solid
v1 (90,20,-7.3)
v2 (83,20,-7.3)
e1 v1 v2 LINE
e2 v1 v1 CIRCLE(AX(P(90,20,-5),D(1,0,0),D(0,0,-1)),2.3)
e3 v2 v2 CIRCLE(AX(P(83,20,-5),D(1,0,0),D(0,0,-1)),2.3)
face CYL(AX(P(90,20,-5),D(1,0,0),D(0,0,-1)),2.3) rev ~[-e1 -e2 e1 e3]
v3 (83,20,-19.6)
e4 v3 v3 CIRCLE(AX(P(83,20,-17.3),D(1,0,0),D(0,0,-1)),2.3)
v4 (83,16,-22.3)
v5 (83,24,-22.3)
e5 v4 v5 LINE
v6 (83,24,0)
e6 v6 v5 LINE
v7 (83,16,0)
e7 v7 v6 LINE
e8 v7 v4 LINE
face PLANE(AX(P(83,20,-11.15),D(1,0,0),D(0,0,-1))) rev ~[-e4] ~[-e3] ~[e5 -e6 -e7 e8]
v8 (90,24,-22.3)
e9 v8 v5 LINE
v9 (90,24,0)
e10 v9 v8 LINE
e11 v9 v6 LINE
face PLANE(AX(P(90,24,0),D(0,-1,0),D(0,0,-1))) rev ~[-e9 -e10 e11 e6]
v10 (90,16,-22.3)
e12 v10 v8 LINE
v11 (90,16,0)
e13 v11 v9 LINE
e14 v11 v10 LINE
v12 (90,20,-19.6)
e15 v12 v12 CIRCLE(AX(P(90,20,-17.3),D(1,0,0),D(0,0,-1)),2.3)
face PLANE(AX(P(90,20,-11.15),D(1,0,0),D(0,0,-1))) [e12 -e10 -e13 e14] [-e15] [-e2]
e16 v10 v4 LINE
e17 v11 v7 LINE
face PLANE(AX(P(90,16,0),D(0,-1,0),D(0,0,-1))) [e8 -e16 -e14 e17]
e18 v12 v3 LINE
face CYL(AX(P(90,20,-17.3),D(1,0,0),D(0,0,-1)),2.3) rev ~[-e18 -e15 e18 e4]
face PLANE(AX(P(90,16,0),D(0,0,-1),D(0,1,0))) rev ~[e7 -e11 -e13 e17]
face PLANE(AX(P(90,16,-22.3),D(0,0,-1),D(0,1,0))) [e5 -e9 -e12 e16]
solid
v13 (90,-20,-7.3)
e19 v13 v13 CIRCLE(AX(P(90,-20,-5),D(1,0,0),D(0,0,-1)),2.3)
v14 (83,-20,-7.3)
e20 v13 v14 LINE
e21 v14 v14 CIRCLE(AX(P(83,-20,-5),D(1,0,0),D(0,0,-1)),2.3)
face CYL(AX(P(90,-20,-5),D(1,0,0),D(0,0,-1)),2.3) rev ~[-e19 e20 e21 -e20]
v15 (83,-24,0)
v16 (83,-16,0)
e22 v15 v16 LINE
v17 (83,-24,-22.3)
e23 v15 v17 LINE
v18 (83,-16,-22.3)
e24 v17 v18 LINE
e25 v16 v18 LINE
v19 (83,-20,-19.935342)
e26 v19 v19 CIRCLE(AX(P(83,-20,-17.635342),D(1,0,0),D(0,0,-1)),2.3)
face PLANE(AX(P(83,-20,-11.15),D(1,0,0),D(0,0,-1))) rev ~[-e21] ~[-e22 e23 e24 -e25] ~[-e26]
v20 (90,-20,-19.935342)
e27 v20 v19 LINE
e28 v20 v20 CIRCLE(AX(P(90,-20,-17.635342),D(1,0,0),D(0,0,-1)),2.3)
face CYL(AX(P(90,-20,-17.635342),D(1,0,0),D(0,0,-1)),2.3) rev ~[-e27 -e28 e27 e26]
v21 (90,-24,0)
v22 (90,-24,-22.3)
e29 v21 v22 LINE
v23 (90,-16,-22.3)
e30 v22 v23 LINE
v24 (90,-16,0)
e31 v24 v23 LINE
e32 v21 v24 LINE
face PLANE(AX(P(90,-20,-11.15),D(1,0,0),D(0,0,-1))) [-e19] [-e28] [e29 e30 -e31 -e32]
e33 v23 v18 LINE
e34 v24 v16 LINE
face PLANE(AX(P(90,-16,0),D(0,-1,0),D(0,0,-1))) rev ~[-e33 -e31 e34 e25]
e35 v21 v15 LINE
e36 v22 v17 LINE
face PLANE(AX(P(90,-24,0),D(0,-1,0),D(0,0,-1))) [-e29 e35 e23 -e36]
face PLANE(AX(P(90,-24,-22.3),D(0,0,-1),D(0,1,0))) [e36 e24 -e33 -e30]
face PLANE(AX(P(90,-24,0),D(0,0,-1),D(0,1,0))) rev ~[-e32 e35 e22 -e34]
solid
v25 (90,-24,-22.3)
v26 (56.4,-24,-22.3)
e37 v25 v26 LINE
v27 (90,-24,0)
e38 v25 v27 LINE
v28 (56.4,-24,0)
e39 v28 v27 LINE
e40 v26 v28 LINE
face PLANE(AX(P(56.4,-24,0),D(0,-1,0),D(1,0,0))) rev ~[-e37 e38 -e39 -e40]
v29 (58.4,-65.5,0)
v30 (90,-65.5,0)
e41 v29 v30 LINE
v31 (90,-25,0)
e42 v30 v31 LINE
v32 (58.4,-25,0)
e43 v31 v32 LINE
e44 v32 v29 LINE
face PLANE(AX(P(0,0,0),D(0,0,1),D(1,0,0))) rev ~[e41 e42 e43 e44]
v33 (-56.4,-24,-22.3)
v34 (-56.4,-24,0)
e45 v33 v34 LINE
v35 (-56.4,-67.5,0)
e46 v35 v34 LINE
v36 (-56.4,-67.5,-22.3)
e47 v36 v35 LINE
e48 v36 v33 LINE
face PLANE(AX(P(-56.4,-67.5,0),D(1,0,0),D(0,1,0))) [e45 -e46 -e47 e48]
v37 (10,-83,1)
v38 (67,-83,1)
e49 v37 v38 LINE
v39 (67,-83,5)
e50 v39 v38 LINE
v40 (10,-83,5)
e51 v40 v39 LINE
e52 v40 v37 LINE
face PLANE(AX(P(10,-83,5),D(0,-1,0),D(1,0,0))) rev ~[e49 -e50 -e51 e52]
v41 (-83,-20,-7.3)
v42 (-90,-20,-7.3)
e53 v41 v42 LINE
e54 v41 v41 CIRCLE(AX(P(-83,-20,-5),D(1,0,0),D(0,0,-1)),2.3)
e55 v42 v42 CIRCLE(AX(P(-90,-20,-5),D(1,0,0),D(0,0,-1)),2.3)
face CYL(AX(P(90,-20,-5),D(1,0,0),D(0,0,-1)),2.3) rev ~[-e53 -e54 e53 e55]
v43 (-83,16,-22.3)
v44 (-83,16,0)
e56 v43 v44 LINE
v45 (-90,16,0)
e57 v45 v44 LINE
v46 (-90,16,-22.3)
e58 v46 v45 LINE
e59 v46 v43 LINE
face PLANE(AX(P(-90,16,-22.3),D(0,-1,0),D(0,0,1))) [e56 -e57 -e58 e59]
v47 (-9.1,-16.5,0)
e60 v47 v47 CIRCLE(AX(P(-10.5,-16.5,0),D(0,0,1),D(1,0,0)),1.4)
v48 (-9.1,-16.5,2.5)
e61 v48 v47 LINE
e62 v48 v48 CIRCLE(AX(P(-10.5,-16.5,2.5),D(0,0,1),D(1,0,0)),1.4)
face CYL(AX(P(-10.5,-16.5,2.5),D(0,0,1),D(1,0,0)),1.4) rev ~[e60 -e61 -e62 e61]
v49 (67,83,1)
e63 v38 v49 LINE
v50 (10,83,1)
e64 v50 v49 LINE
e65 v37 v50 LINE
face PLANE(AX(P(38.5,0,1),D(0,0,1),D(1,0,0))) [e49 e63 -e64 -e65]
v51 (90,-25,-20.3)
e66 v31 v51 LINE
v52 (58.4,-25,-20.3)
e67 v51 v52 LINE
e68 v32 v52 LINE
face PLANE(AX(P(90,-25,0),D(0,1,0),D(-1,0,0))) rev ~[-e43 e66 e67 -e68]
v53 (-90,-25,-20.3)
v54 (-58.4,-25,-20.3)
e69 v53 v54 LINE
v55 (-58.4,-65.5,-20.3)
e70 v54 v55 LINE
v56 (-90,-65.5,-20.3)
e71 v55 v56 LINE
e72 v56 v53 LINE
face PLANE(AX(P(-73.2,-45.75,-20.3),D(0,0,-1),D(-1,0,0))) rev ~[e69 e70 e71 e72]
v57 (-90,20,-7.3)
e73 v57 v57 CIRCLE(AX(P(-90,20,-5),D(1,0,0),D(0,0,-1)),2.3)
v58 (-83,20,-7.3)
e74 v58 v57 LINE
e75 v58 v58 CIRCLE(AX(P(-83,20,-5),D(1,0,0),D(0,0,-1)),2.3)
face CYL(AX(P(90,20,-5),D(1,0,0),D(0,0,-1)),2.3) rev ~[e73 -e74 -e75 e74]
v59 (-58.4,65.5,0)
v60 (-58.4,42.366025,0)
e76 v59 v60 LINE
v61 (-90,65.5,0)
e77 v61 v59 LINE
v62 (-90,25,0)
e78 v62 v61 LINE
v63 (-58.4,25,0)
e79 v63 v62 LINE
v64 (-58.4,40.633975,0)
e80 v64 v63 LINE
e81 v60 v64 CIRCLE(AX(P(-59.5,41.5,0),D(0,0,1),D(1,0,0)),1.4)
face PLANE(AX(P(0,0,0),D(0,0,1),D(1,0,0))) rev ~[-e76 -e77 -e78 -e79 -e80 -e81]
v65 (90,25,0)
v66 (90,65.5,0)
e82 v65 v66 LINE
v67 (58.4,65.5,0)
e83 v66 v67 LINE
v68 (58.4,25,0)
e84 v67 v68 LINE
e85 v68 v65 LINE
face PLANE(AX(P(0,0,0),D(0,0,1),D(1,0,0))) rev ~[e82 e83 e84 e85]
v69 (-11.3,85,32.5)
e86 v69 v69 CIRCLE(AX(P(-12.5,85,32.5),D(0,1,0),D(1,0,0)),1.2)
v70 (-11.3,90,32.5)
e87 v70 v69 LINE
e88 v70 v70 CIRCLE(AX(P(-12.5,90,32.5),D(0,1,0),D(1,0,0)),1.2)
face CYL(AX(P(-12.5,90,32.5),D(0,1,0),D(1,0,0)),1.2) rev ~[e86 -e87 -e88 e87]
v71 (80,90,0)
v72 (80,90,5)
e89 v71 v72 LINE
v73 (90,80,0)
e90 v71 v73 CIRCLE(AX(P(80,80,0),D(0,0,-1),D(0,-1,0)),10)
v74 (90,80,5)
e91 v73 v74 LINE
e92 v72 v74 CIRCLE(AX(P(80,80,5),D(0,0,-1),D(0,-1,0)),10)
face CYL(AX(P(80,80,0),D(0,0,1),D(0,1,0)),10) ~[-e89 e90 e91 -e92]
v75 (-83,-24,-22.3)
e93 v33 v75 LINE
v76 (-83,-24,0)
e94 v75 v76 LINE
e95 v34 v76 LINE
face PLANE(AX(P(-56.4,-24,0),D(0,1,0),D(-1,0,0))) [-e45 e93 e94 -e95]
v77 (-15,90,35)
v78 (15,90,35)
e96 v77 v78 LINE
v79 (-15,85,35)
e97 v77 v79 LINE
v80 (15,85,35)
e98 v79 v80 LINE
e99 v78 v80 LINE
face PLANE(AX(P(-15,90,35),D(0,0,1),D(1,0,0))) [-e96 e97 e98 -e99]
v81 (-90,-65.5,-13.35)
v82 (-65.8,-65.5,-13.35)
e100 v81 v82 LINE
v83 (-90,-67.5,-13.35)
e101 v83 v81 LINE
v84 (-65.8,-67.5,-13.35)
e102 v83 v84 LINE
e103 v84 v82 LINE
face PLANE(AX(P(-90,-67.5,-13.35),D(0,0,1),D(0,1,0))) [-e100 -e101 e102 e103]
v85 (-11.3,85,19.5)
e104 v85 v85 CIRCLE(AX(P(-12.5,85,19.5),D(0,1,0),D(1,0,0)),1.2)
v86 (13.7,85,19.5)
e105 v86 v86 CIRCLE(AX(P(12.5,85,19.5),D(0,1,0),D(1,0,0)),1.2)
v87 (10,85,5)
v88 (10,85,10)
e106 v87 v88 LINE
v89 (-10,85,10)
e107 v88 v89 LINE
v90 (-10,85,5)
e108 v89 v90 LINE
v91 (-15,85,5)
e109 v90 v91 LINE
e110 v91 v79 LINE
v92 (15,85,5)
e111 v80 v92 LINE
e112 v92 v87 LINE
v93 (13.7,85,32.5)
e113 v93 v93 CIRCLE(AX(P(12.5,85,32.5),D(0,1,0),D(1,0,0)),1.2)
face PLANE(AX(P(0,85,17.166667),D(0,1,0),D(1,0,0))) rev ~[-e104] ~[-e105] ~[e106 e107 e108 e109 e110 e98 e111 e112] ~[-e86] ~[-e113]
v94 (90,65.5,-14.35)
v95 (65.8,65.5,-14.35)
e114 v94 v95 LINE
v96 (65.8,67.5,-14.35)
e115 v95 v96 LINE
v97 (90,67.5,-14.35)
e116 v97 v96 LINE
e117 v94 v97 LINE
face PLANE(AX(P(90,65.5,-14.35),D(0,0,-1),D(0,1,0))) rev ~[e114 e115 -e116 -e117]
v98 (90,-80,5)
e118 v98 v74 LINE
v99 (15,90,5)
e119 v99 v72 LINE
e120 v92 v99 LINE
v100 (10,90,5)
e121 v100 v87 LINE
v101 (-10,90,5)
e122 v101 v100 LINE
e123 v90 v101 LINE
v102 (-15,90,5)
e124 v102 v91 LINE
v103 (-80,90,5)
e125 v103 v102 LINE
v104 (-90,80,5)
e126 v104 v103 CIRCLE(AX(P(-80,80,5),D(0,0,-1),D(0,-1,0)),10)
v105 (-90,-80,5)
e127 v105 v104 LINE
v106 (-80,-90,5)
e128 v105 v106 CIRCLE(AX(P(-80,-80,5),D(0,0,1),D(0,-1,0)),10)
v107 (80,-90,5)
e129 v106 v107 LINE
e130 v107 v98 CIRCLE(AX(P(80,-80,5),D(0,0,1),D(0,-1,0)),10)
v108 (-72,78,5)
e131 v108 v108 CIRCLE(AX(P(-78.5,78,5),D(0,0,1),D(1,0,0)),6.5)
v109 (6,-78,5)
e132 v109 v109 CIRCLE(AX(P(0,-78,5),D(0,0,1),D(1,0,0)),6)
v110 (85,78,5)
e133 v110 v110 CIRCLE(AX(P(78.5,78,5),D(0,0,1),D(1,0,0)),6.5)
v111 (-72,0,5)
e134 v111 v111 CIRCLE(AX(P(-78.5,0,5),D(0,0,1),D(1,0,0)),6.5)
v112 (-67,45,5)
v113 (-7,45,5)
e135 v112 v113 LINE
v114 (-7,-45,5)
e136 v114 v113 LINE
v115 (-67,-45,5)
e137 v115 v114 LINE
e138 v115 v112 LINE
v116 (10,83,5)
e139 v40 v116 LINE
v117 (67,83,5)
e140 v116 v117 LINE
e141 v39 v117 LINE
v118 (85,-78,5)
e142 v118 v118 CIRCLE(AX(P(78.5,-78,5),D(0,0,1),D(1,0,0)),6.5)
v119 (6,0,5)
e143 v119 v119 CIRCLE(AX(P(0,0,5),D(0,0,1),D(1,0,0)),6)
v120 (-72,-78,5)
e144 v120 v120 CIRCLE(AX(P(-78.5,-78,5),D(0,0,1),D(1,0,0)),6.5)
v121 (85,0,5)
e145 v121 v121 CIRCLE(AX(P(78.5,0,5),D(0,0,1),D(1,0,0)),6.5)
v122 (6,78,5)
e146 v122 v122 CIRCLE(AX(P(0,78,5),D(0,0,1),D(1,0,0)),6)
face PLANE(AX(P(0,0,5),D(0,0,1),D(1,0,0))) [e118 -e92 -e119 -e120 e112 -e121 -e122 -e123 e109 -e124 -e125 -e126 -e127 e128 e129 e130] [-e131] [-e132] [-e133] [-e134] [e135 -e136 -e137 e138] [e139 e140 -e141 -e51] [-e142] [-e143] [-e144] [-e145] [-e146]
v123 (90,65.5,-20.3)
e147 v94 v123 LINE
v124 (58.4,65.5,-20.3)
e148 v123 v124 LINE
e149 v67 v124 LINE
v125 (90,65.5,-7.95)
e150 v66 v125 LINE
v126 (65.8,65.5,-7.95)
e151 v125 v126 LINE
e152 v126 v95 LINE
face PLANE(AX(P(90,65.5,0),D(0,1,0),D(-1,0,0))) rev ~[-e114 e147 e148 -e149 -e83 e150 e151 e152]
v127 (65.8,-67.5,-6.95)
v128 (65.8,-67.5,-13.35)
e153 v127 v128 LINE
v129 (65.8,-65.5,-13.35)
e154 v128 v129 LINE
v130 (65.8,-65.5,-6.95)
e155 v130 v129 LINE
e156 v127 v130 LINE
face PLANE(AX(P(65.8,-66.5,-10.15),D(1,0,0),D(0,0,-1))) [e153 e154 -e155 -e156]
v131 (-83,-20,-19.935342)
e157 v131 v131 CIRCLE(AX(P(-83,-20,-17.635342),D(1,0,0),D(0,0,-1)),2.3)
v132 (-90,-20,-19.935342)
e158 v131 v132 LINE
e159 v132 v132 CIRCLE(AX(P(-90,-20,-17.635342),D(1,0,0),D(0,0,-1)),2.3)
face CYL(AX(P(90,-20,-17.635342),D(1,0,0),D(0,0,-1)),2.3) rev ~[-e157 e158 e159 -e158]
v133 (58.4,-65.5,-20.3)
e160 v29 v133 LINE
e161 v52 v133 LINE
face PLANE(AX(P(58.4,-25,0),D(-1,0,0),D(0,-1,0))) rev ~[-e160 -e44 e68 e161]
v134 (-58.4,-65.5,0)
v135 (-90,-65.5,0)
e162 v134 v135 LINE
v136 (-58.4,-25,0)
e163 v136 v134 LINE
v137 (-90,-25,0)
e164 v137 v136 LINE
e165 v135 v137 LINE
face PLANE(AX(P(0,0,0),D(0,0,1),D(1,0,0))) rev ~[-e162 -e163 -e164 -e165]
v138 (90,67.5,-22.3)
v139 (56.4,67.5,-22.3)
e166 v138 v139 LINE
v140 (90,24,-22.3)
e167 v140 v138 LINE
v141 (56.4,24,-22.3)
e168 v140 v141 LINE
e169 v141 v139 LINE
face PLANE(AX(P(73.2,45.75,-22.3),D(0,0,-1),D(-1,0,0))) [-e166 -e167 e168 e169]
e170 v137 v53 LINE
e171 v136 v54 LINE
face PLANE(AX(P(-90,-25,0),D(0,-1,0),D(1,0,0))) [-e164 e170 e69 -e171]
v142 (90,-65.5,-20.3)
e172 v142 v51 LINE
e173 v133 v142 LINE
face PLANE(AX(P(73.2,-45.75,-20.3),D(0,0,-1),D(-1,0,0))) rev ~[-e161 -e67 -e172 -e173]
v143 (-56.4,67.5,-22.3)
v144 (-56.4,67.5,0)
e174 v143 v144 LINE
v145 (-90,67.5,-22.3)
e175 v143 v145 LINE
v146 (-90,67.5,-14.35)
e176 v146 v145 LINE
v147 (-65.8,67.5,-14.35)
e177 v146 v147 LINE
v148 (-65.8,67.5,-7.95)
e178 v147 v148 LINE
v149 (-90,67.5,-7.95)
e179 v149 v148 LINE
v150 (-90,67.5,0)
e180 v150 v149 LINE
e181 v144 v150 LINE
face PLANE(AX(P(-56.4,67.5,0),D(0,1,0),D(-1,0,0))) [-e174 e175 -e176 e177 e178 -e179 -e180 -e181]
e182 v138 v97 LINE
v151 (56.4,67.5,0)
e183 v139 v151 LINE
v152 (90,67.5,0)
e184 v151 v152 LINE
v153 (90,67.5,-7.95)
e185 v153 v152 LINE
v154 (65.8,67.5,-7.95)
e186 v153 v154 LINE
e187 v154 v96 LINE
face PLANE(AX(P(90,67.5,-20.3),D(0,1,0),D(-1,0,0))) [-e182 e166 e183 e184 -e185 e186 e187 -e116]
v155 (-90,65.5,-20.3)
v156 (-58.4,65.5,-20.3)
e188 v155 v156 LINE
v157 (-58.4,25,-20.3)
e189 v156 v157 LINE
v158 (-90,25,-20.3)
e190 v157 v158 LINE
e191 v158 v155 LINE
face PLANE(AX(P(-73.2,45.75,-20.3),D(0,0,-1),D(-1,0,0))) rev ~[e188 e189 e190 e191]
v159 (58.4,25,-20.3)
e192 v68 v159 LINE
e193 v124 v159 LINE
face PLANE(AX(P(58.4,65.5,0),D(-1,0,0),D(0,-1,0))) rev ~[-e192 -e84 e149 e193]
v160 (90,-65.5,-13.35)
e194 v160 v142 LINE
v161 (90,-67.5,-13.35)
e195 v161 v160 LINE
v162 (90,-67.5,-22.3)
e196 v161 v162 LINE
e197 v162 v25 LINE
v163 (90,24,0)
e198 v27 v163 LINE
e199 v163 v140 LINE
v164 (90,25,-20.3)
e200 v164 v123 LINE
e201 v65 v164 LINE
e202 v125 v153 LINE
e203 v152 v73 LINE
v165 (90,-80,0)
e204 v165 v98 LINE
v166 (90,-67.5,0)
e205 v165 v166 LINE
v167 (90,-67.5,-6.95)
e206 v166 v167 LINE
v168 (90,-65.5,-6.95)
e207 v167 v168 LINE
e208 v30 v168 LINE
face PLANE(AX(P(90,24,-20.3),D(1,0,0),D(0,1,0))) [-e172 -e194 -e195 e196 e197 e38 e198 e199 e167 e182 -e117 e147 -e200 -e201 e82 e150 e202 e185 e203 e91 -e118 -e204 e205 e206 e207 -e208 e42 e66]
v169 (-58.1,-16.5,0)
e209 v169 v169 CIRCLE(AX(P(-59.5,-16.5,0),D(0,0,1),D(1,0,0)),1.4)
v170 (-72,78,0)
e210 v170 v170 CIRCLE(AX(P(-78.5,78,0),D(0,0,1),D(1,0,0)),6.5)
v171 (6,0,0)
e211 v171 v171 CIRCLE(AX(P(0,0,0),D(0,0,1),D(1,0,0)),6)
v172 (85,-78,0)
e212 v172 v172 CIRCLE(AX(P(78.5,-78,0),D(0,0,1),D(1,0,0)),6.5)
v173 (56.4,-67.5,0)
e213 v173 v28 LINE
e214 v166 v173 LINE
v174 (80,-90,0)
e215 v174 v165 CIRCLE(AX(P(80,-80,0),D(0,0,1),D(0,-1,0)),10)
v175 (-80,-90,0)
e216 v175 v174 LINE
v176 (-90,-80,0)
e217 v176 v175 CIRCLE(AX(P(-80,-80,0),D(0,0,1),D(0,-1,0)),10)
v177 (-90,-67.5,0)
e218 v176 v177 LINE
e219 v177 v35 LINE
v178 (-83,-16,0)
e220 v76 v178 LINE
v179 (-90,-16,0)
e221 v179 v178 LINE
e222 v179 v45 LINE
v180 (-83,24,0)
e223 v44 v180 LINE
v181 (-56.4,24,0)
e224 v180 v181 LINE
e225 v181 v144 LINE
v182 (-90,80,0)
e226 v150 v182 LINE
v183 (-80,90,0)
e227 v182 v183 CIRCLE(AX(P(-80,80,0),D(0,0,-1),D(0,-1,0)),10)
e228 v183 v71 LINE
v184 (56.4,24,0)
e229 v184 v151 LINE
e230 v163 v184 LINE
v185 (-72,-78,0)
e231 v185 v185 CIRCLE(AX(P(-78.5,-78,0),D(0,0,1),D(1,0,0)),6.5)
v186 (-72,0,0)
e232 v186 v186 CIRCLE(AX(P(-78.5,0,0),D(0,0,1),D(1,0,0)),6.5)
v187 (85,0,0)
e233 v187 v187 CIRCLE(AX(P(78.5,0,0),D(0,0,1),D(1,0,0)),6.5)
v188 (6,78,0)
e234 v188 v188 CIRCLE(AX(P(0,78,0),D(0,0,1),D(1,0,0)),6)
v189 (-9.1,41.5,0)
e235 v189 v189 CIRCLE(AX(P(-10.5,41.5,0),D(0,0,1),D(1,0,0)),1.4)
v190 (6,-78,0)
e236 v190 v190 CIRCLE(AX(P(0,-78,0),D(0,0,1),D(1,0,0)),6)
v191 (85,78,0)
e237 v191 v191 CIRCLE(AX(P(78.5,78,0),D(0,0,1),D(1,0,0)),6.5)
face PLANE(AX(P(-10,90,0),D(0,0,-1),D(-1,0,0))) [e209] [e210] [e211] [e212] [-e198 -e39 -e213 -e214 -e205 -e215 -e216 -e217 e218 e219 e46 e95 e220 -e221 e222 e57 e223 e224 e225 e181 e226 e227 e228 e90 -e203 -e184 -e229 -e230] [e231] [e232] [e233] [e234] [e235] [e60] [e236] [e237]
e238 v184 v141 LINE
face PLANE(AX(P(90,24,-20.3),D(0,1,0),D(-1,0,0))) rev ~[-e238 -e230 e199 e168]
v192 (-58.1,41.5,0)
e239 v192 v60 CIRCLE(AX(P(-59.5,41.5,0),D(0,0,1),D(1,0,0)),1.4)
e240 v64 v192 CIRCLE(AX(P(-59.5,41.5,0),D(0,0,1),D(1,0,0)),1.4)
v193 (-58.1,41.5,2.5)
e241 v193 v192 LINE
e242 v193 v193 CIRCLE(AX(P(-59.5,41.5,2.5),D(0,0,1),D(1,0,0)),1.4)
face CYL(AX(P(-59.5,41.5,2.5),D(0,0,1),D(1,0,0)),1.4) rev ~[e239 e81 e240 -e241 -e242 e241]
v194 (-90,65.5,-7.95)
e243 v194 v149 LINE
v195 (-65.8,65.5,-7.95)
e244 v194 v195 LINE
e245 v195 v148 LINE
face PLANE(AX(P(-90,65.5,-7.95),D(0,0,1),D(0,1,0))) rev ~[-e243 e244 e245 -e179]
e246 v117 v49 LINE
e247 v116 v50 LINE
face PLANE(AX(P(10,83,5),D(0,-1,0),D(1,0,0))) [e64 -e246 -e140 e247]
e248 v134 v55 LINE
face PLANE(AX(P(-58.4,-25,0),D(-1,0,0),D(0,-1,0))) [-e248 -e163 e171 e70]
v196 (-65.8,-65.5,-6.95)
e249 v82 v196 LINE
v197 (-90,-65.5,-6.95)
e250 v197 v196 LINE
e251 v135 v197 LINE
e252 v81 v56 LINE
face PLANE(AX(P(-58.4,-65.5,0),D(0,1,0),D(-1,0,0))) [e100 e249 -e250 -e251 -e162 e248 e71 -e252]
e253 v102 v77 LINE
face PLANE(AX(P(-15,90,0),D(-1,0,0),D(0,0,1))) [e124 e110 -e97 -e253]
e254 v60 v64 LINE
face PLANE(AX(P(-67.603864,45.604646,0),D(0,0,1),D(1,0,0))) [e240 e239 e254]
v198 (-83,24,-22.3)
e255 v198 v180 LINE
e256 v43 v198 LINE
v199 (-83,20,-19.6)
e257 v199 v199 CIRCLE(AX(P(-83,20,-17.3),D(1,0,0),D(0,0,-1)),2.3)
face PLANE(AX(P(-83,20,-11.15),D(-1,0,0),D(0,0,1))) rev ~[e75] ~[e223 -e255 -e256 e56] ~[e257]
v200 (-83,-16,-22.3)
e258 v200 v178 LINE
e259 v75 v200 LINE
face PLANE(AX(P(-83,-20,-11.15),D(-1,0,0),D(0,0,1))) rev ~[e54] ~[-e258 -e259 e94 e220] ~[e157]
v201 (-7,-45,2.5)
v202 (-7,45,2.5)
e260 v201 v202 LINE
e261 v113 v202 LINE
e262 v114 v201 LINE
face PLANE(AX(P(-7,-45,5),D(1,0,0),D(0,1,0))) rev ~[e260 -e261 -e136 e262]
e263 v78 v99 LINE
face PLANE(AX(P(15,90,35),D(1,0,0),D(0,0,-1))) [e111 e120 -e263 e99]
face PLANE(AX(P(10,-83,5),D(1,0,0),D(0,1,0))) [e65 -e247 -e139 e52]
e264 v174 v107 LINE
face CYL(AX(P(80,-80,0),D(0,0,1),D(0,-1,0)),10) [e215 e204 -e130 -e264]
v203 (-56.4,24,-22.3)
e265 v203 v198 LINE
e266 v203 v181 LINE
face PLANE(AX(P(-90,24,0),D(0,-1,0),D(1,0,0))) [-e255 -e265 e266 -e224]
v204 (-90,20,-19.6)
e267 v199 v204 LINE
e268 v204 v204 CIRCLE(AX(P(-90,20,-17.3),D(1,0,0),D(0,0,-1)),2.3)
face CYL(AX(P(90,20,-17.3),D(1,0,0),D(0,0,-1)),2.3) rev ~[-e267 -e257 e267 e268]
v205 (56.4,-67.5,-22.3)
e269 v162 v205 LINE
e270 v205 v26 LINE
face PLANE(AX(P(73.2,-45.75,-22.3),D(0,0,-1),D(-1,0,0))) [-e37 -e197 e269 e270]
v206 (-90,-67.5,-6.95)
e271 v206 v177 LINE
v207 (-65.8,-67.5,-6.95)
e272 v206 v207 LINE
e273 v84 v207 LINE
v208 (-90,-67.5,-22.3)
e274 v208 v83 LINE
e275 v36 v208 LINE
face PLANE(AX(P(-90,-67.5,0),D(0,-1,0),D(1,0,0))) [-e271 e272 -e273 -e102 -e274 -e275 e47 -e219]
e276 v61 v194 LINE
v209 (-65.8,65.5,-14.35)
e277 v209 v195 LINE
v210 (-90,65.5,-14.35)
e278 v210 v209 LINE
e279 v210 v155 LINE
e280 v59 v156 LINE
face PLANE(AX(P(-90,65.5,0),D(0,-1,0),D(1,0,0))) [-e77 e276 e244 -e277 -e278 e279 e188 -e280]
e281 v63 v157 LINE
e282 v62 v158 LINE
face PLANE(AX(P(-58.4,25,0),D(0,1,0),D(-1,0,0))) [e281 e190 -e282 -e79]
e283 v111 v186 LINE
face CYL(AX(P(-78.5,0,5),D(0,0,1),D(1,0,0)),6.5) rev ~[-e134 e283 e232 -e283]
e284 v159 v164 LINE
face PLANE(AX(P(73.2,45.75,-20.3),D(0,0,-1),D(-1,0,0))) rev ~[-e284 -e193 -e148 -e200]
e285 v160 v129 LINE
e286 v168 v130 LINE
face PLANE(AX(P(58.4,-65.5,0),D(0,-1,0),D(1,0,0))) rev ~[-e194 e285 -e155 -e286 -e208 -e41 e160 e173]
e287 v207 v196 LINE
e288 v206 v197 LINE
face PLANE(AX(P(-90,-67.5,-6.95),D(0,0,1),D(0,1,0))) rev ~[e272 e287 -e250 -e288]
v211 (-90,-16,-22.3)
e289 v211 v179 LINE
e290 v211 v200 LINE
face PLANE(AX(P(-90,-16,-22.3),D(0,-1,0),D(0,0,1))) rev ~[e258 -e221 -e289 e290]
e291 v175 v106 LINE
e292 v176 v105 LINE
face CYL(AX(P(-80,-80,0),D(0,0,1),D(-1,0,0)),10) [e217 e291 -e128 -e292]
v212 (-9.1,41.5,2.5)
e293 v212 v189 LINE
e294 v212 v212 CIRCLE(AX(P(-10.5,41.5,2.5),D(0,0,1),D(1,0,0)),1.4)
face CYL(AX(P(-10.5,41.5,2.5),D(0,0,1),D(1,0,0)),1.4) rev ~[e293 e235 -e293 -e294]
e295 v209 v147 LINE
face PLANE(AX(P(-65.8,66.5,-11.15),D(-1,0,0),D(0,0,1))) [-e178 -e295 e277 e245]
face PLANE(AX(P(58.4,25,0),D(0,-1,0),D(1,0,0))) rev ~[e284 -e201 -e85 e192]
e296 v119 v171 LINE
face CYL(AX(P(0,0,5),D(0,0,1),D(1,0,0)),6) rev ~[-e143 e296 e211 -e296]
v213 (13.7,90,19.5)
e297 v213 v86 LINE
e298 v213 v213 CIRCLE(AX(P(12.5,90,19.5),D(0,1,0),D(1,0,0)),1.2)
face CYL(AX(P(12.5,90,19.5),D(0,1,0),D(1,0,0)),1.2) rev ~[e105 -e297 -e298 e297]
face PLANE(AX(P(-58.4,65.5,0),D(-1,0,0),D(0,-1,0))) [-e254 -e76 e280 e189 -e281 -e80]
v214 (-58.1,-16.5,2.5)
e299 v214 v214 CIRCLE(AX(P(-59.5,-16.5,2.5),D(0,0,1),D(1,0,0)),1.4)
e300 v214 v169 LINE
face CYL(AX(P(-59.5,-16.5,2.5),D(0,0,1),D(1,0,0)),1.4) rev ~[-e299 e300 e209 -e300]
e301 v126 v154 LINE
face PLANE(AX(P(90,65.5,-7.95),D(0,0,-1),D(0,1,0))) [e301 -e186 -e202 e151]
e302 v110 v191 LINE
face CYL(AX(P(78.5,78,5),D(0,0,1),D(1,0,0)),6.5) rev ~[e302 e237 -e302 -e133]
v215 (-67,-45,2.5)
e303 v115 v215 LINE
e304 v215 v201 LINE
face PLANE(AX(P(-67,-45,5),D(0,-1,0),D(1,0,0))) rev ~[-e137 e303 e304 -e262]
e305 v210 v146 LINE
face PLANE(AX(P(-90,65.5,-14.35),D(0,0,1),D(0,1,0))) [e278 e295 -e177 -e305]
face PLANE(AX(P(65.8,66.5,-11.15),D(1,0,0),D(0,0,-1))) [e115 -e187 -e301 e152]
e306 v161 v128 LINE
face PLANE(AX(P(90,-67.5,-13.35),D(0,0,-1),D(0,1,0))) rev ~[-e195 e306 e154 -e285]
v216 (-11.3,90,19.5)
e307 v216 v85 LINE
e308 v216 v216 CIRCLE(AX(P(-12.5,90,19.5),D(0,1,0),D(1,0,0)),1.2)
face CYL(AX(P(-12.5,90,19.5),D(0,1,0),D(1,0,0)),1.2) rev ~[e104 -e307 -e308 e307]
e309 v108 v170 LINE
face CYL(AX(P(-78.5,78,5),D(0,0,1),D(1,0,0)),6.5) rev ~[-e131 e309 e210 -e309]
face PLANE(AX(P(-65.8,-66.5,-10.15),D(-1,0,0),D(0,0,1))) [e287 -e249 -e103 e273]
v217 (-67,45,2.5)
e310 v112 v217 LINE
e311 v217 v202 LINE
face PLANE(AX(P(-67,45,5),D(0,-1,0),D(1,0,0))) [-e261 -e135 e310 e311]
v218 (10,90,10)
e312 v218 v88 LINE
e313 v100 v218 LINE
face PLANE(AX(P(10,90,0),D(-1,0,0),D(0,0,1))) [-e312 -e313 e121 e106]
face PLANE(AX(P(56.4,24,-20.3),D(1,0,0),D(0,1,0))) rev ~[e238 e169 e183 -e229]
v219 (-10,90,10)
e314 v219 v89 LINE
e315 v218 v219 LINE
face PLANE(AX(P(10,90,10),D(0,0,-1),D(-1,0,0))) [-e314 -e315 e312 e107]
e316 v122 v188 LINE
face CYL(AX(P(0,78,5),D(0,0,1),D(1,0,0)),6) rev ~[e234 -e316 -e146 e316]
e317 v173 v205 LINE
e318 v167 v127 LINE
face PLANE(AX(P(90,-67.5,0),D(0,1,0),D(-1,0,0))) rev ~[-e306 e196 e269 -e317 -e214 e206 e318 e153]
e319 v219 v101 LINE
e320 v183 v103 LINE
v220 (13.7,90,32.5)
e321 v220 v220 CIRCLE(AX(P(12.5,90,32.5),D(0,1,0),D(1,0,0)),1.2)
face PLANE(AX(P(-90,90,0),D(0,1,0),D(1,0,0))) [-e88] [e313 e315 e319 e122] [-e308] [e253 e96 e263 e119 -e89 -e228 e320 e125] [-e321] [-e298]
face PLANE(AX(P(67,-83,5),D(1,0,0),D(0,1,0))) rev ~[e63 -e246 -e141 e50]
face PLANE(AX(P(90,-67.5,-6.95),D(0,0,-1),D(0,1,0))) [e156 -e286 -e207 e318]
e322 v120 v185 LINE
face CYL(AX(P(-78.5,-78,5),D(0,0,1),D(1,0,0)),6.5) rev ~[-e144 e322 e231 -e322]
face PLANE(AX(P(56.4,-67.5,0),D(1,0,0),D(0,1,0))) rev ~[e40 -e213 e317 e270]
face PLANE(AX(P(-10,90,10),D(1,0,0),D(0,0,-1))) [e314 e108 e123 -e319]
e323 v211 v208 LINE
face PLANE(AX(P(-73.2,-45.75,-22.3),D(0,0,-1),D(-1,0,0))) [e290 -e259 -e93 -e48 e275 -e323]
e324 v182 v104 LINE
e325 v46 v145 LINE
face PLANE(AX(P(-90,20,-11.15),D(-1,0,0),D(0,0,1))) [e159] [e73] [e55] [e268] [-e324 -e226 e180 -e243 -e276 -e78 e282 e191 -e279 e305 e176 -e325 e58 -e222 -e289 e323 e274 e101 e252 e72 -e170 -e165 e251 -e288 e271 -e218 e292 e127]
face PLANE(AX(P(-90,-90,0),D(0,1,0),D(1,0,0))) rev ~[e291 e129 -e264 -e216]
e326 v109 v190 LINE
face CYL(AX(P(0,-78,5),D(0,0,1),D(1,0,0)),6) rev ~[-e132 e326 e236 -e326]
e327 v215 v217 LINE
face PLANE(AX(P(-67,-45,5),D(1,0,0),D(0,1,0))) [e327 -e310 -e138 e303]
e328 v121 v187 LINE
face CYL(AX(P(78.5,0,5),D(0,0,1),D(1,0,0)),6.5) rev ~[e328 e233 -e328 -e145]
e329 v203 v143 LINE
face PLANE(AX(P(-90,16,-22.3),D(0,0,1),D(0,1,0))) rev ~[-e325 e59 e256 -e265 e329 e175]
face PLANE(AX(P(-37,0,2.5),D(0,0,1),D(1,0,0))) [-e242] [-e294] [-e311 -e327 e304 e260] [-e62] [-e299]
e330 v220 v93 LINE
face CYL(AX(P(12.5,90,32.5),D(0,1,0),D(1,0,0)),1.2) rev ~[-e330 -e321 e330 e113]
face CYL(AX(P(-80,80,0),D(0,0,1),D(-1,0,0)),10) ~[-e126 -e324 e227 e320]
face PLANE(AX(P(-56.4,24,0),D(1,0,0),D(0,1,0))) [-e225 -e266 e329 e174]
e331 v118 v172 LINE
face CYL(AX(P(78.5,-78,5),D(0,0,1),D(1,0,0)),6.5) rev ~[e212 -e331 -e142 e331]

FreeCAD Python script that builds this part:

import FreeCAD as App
import Part
import Sketcher
from FreeCAD import Vector
Q = App.Units.Quantity


def edges_at(feature, points):
    """Names of the edges that pass closest to the given points."""
    edges = feature.Shape.Edges
    near = lambda p: min(range(len(edges)), key=lambda i: edges[i].distToShape(Part.Vertex(*p))[0])
    return sorted({f"Edge{near(p) + 1}" for p in points})


def add_polygon(sketch, points):
    """Adds a closed chain of lines whose ends are joined by coincident constraints."""
    first, n = sketch.GeometryCount, len(points)
    for a, b in zip(points, points[1:] + points[:1]):
        sketch.addGeometry(Part.LineSegment(App.Vector(*a, 0), App.Vector(*b, 0)), False)
    for i in range(n):
        sketch.addConstraint(Sketcher.Constraint("Coincident", first + i, 2, first + (i + 1) % n, 1))

doc = App.newDocument("Part")
params = doc.addObject("Spreadsheet::Sheet", "Params")
for row, (alias, value) in enumerate([
    ("sketch1_width", "180 mm"),
    ("pad1_length", "5 mm"),
    ("sketch2_width", "60 mm"),
    ("sketch2_height", "90 mm"),
    ("pocket1_length", "2.5 mm"),
    ("sketch3_diameter", "2.8 mm"),
    ("pocket2_length", "2.5 mm"),
    ("sketch4_width", "57 mm"),
    ("sketch4_height", "166 mm"),
    ("pocket3_length", "4 mm"),
    ("sketch5_height", "2 mm"),
    ("sketch5_height2", "1 mm"),
    ("sketch5_width", "31.6 mm"),
    ("sketch5_width2", "33.6 mm"),
    ("sketch5_height3", "43.5 mm"),
    ("pad2_length", "20.3 mm"),
    ("sketch6_width", "33.6 mm"),
    ("sketch6_height", "43.5 mm"),
    ("pad3_length", "2 mm"),
    ("sketch7_width", "2 mm"),
    ("sketch7_height", "6.4 mm"),
    ("pocket4_length", "24.2 mm"),
    ("sketch8_width", "8 mm"),
    ("sketch8_height", "22.3 mm"),
    ("pad4_length", "7 mm"),
    ("sketch9_width", "2 mm"),
    ("sketch9_height", "6.4 mm"),
    ("pocket5_length", "24.2 mm"),
    ("sketch10_width", "8 mm"),
    ("sketch10_height", "22.3 mm"),
    ("pad5_length", "7 mm"),
    ("sketch11_width", "8 mm"),
    ("sketch11_height", "22.3 mm"),
    ("pad6_length", "7 mm"),
    ("sketch12_diameter", "4.6 mm"),
    ("pad7_length", "181 mm"),
    ("sketch13_diameter", "13 mm"),
    ("sketch13_diameter2", "12 mm"),
    ("fillet_radius", "10 mm"),
    ("sketch14_width", "30 mm"),
    ("sketch14_width2", "5 mm"),
    ("sketch14_height", "35 mm"),
    ("sketch14_height2", "10 mm"),
    ("pad8_length", "5 mm"),
    ("sketch15_diameter", "2.4 mm"),
], start=1):
    params.set(f"A{row}", alias)
    params.set(f"B{row}", "=" + value)
    params.setAlias(f"B{row}", alias)

body = doc.addObject("PartDesign::Body", "Body")

sketch1 = body.newObject("Sketcher::SketchObject", "Sketch")
sketch1.AttachmentSupport = (doc.getObject("XY_Plane"), [""])
sketch1.MapMode = "FlatFace"
add_polygon(sketch1, [(-90, 90), (-90, -90), (90, -90), (90, 90)])
sketch1.addConstraint([
    Sketcher.Constraint("Vertical", 0),
    Sketcher.Constraint("Horizontal", 1),
    Sketcher.Constraint("Vertical", 2),
    Sketcher.Constraint("Horizontal", 3),
    Sketcher.Constraint("Symmetric", 0, 2, 2, 2, -1, 1),
    Sketcher.Constraint("Equal", 3, 0),
    Sketcher.Constraint("DistanceX", 1, 1, 1, 2, Q("180 mm")),
])
sketch1.setExpression("Constraints[10]", "Params.sketch1_width")
pad1 = body.newObject("PartDesign::Pad", "Pad")
pad1.Profile = sketch1
pad1.setExpression("Length", "Params.pad1_length")

sketch2 = body.newObject("Sketcher::SketchObject", "Sketch001")
sketch2.AttachmentSupport = (doc.getObject("XY_Plane"), [""])
sketch2.MapMode = "FlatFace"
sketch2.AttachmentOffset = App.Placement(Vector(0, 0, 5), App.Rotation())
add_polygon(sketch2, [(-67, 45), (-67, -45), (-7, -45), (-7, 45)])
sketch2.addConstraint([
    Sketcher.Constraint("Vertical", 0),
    Sketcher.Constraint("Horizontal", 1),
    Sketcher.Constraint("Vertical", 2),
    Sketcher.Constraint("Horizontal", 3),
    Sketcher.Constraint("DistanceX", 1, 1, 1, 2, Q("60 mm")),
    Sketcher.Constraint("DistanceY", 0, 2, 0, 1, Q("90 mm")),
    Sketcher.Constraint("DistanceX", 0, 2, -1, 1, Q("67 mm")),
    Sketcher.Constraint("DistanceY", 0, 2, -1, 1, Q("45 mm")),
])
sketch2.setExpression("Constraints[8]", "Params.sketch2_width")
sketch2.setExpression("Constraints[9]", "Params.sketch2_height")
pocket1 = body.newObject("PartDesign::Pocket", "Pocket")
pocket1.Profile = sketch2
pocket1.setExpression("Length", "Params.pocket1_length")

sketch3 = body.newObject("Sketcher::SketchObject", "Sketch002")
sketch3.AttachmentSupport = (doc.getObject("XY_Plane"), [""])
sketch3.MapMode = "FlatFace"
sketch3.AttachmentOffset = App.Placement(Vector(0, 0, 2.5), App.Rotation())
sketch3.addGeometry([
    Part.Circle(Vector(-10.5, 41.5, 0), Vector(0, 0, 1), 1.4),
    Part.Circle(Vector(-59.5, 41.5, 0), Vector(0, 0, 1), 1.4),
    Part.Circle(Vector(-59.5, -16.5, 0), Vector(0, 0, 1), 1.4),
    Part.Circle(Vector(-10.5, -16.5, 0), Vector(0, 0, 1), 1.4),
], False)
sketch3.addConstraint([
    Sketcher.Constraint("Equal", 0, 1),
    Sketcher.Constraint("Equal", 1, 2),
    Sketcher.Constraint("Equal", 2, 3),
    Sketcher.Constraint("Horizontal", 0, 3, 1, 3),
    Sketcher.Constraint("Horizontal", 2, 3, 3, 3),
    Sketcher.Constraint("Vertical", 1, 3, 2, 3),
    Sketcher.Constraint("Vertical", 0, 3, 3, 3),
    Sketcher.Constraint("Diameter", 0, Q("2.8 mm")),
    Sketcher.Constraint("DistanceX", 1, 3, 0, 3, Q("49 mm")),
    Sketcher.Constraint("DistanceY", 2, 3, 1, 3, Q("58 mm")),
    Sketcher.Constraint("DistanceX", 0, 3, -1, 1, Q("10.5 mm")),
    Sketcher.Constraint("DistanceY", -1, 1, 0, 3, Q("41.5 mm")),
])
sketch3.setExpression("Constraints[7]", "Params.sketch3_diameter")
pocket2 = body.newObject("PartDesign::Pocket", "Pocket001")
pocket2.Profile = sketch3
pocket2.setExpression("Length", "Params.pocket2_length")

sketch4 = body.newObject("Sketcher::SketchObject", "Sketch003")
sketch4.AttachmentSupport = (doc.getObject("XY_Plane"), [""])
sketch4.MapMode = "FlatFace"
sketch4.AttachmentOffset = App.Placement(Vector(0, 0, 5), App.Rotation())
add_polygon(sketch4, [(10, 83), (10, -83), (67, -83), (67, 83)])
sketch4.addConstraint([
    Sketcher.Constraint("Vertical", 0),
    Sketcher.Constraint("Horizontal", 1),
    Sketcher.Constraint("Vertical", 2),
    Sketcher.Constraint("Horizontal", 3),
    Sketcher.Constraint("DistanceX", 1, 1, 1, 2, Q("57 mm")),
    Sketcher.Constraint("DistanceY", 0, 2, 0, 1, Q("166 mm")),
    Sketcher.Constraint("DistanceX", -1, 1, 0, 2, Q("10 mm")),
    Sketcher.Constraint("DistanceY", 0, 2, -1, 1, Q("83 mm")),
])
sketch4.setExpression("Constraints[8]", "Params.sketch4_width")
sketch4.setExpression("Constraints[9]", "Params.sketch4_height")
pocket3 = body.newObject("PartDesign::Pocket", "Pocket002")
pocket3.Profile = sketch4
pocket3.setExpression("Length", "Params.pocket3_length")

sketch5 = body.newObject("Sketcher::SketchObject", "Sketch004")
sketch5.AttachmentSupport = (doc.getObject("XY_Plane"), [""])
sketch5.MapMode = "FlatFace"
add_polygon(sketch5, [(-58.4, 65.5), (-90, 65.5), (-90, 67.5), (-56.4, 67.5), (-56.4, 24), (-90, 24), (-90, 25), (-58.4, 25)])
add_polygon(sketch5, [(-58.4, -25), (-90, -25), (-90, -24), (-56.4, -24), (-56.4, -67.5), (-90, -67.5), (-90, -65.5), (-58.4, -65.5)])
add_polygon(sketch5, [(90, -25), (58.4, -25), (58.4, -65.5), (90, -65.5), (90, -67.5), (56.4, -67.5), (56.4, -24), (90, -24)])
add_polygon(sketch5, [(90, 65.5), (58.4, 65.5), (58.4, 25), (90, 25), (90, 24), (56.4, 24), (56.4, 67.5), (90, 67.5)])
sketch5.addConstraint([
    Sketcher.Constraint("Horizontal", 0),
    Sketcher.Constraint("Vertical", 1),
    Sketcher.Constraint("Horizontal", 2),
    Sketcher.Constraint("Vertical", 3),
    Sketcher.Constraint("Horizontal", 4),
    Sketcher.Constraint("Vertical", 5),
    Sketcher.Constraint("Horizontal", 6),
    Sketcher.Constraint("Vertical", 7),
    Sketcher.Constraint("Horizontal", 8),
    Sketcher.Constraint("Vertical", 9),
    Sketcher.Constraint("Horizontal", 10),
    Sketcher.Constraint("Vertical", 11),
    Sketcher.Constraint("Horizontal", 12),
    Sketcher.Constraint("Vertical", 13),
    Sketcher.Constraint("Horizontal", 14),
    Sketcher.Constraint("Vertical", 15),
    Sketcher.Constraint("Horizontal", 16),
    Sketcher.Constraint("Vertical", 17),
    Sketcher.Constraint("Horizontal", 18),
    Sketcher.Constraint("Vertical", 19),
    Sketcher.Constraint("Horizontal", 20),
    Sketcher.Constraint("Vertical", 21),
    Sketcher.Constraint("Horizontal", 22),
    Sketcher.Constraint("Vertical", 23),
    Sketcher.Constraint("Horizontal", 24),
    Sketcher.Constraint("Vertical", 25),
    Sketcher.Constraint("Horizontal", 26),
    Sketcher.Constraint("Vertical", 27),
    Sketcher.Constraint("Horizontal", 28),
    Sketcher.Constraint("Vertical", 29),
    Sketcher.Constraint("Horizontal", 30),
    Sketcher.Constraint("Vertical", 31),
    Sketcher.Constraint("Symmetric", 6, 2, 16, 2, -1, 1),
    Sketcher.Constraint("Symmetric", 0, 2, 18, 2, -1, 1),
    Sketcher.Constraint("Symmetric", 2, 2, 20, 2, -1, 1),
    Sketcher.Constraint("Symmetric", 4, 2, 22, 2, -1, 1),
    Sketcher.Constraint("Symmetric", 14, 2, 24, 2, -1, 1),
    Sketcher.Constraint("Symmetric", 8, 2, 26, 2, -1, 1),
    Sketcher.Constraint("Symmetric", 10, 2, 28, 2, -1, 1),
    Sketcher.Constraint("Symmetric", 12, 2, 30, 2, -1, 1),
    Sketcher.Constraint("Symmetric", 15, 2, 16, 2, -2),
    Sketcher.Constraint("Symmetric", 13, 2, 18, 2, -2),
    Sketcher.Constraint("Symmetric", 11, 2, 20, 2, -2),
    Sketcher.Constraint("Symmetric", 9, 2, 22, 2, -2),
    Sketcher.Constraint("Vertical", 1, 2, 4, 2),
    Sketcher.Constraint("DistanceY", 1, 1, 1, 2, Q("2 mm")),
    Sketcher.Constraint("DistanceY", 5, 1, 5, 2, Q("1 mm")),
    Sketcher.Constraint("DistanceX", 0, 2, 0, 1, Q("31.6 mm")),
    Sketcher.Constraint("DistanceX", 2, 1, 2, 2, Q("33.6 mm")),
    Sketcher.Constraint("DistanceY", 3, 2, 3, 1, Q("43.5 mm")),
    Sketcher.Constraint("DistanceX", 0, 2, -1, 1, Q("90 mm")),
    Sketcher.Constraint("DistanceY", -1, 1, 3, 2, Q("24 mm")),
])
sketch5.setExpression("Constraints[77]", "Params.sketch5_height")
sketch5.setExpression("Constraints[78]", "Params.sketch5_height2")
sketch5.setExpression("Constraints[79]", "Params.sketch5_width")
sketch5.setExpression("Constraints[80]", "Params.sketch5_width2")
sketch5.setExpression("Constraints[81]", "Params.sketch5_height3")
pad2 = body.newObject("PartDesign::Pad", "Pad001")
pad2.Profile = sketch5
pad2.setExpression("Length", "Params.pad2_length")
pad2.Reversed = True

sketch6 = body.newObject("Sketcher::SketchObject", "Sketch005")
sketch6.AttachmentSupport = (doc.getObject("XY_Plane"), [""])
sketch6.MapMode = "FlatFace"
sketch6.AttachmentOffset = App.Placement(Vector(0, 0, -20.3), App.Rotation())
add_polygon(sketch6, [(90, 67.5), (90, 24), (56.4, 24), (56.4, 67.5)])
add_polygon(sketch6, [(90, -24), (90, -67.5), (56.4, -67.5), (56.4, -24)])
add_polygon(sketch6, [(-56.4, -24), (-56.4, -67.5), (-90, -67.5), (-90, -24)])
add_polygon(sketch6, [(-56.4, 67.5), (-56.4, 24), (-90, 24), (-90, 67.5)])
sketch6.addConstraint([
    Sketcher.Constraint("Vertical", 0),
    Sketcher.Constraint("Horizontal", 1),
    Sketcher.Constraint("Vertical", 2),
    Sketcher.Constraint("Horizontal", 3),
    Sketcher.Constraint("Vertical", 4),
    Sketcher.Constraint("Horizontal", 5),
    Sketcher.Constraint("Vertical", 6),
    Sketcher.Constraint("Horizontal", 7),
    Sketcher.Constraint("Vertical", 8),
    Sketcher.Constraint("Horizontal", 9),
    Sketcher.Constraint("Vertical", 10),
    Sketcher.Constraint("Horizontal", 11),
    Sketcher.Constraint("Vertical", 12),
    Sketcher.Constraint("Horizontal", 13),
    Sketcher.Constraint("Vertical", 14),
    Sketcher.Constraint("Horizontal", 15),
    Sketcher.Constraint("Symmetric", 2, 2, 8, 2, -1, 1),
    Sketcher.Constraint("Symmetric", 0, 2, 10, 2, -1, 1),
    Sketcher.Constraint("Symmetric", 6, 2, 12, 2, -1, 1),
    Sketcher.Constraint("Symmetric", 4, 2, 14, 2, -1, 1),
    Sketcher.Constraint("Symmetric", 5, 2, 8, 2, -2),
    Sketcher.Constraint("Symmetric", 7, 2, 10, 2, -2),
    Sketcher.Constraint("DistanceX", 1, 2, 1, 1, Q("33.6 mm")),
    Sketcher.Constraint("DistanceY", 0, 2, 0, 1, Q("43.5 mm")),
    Sketcher.Constraint("DistanceX", -1, 1, 0, 2, Q("90 mm")),
    Sketcher.Constraint("DistanceY", -1, 1, 0, 2, Q("24 mm")),
])
sketch6.setExpression("Constraints[38]", "Params.sketch6_width")
sketch6.setExpression("Constraints[39]", "Params.sketch6_height")
pad3 = body.newObject("PartDesign::Pad", "Pad002")
pad3.Profile = sketch6
pad3.setExpression("Length", "Params.pad3_length")
pad3.Reversed = True

sketch7 = body.newObject("Sketcher::SketchObject", "Sketch006")
sketch7.AttachmentSupport = (doc.getObject("YZ_Plane"), [""])
sketch7.MapMode = "FlatFace"
sketch7.AttachmentOffset = App.Placement(Vector(0, 0, 90), App.Rotation())
add_polygon(sketch7, [(-65.5, -6.95), (-67.5, -6.95), (-67.5, -13.35), (-65.5, -13.35)])
add_polygon(sketch7, [(67.5, -7.95), (65.5, -7.95), (65.5, -14.35), (67.5, -14.35)])
sketch7.addConstraint([
    Sketcher.Constraint("Horizontal", 0),
    Sketcher.Constraint("Vertical", 1),
    Sketcher.Constraint("Horizontal", 2),
    Sketcher.Constraint("Vertical", 3),
    Sketcher.Constraint("Horizontal", 4),
    Sketcher.Constraint("Vertical", 5),
    Sketcher.Constraint("Horizontal", 6),
    Sketcher.Constraint("Vertical", 7),
    Sketcher.Constraint("Equal", 2, 4),
    Sketcher.Constraint("Equal", 3, 5),
    Sketcher.Constraint("DistanceX", 0, 2, 0, 1, Q("2 mm")),
    Sketcher.Constraint("DistanceY", 1, 2, 1, 1, Q("6.4 mm")),
    Sketcher.Constraint("DistanceX", 3, 2, 4, 2, Q("131 mm")),
    Sketcher.Constraint("DistanceY", 4, 2, 3, 2, Q("1 mm")),
    Sketcher.Constraint("DistanceX", 0, 2, -1, 1, Q("67.5 mm")),
    Sketcher.Constraint("DistanceY", 0, 2, -1, 1, Q("6.95 mm")),
])
sketch7.setExpression("Constraints[18]", "Params.sketch7_width")
sketch7.setExpression("Constraints[19]", "Params.sketch7_height")
pocket4 = body.newObject("PartDesign::Pocket", "Pocket003")
pocket4.Profile = sketch7
pocket4.setExpression("Length", "Params.pocket4_length")

sketch8 = body.newObject("Sketcher::SketchObject", "Sketch007")
sketch8.AttachmentSupport = (doc.getObject("YZ_Plane"), [""])
sketch8.MapMode = "FlatFace"
sketch8.AttachmentOffset = App.Placement(Vector(0, 0, -90), App.Rotation())
add_polygon(sketch8, [(24, -22.3), (16, -22.3), (16, 0), (24, 0)])
add_polygon(sketch8, [(-16, -22.3), (-24, -22.3), (-24, 0), (-16, 0)])
sketch8.addConstraint([
    Sketcher.Constraint("Horizontal", 0),
    Sketcher.Constraint("Vertical", 1),
    Sketcher.Constraint("Horizontal", 2),
    Sketcher.Constraint("Vertical", 3),
    Sketcher.Constraint("Horizontal", 4),
    Sketcher.Constraint("Vertical", 5),
    Sketcher.Constraint("Horizontal", 6),
    Sketcher.Constraint("Vertical", 7),
    Sketcher.Constraint("Symmetric", 2, 2, 5, 2, -1, 1),
    Sketcher.Constraint("Symmetric", 1, 2, 6, 2, -2),
    Sketcher.Constraint("Horizontal", 3, 2, 4, 2),
    Sketcher.Constraint("DistanceX", 0, 2, 0, 1, Q("8 mm")),
    Sketcher.Constraint("DistanceY", 1, 1, 1, 2, Q("22.3 mm")),
    Sketcher.Constraint("DistanceX", -1, 1, 0, 2, Q("16 mm")),
])
sketch8.setExpression("Constraints[19]", "Params.sketch8_width")
sketch8.setExpression("Constraints[20]", "Params.sketch8_height")
pad4 = body.newObject("PartDesign::Pad", "Pad003")
pad4.Profile = sketch8
pad4.setExpression("Length", "Params.pad4_length")

sketch9 = body.newObject("Sketcher::SketchObject", "Sketch008")
sketch9.AttachmentSupport = (doc.getObject("YZ_Plane"), [""])
sketch9.MapMode = "FlatFace"
sketch9.AttachmentOffset = App.Placement(Vector(0, 0, -90), App.Rotation())
add_polygon(sketch9, [(67.5, -14.35), (65.5, -14.35), (65.5, -7.95), (67.5, -7.95)])
add_polygon(sketch9, [(-65.5, -13.35), (-67.5, -13.35), (-67.5, -6.95), (-65.5, -6.95)])
sketch9.addConstraint([
    Sketcher.Constraint("Horizontal", 0),
    Sketcher.Constraint("Vertical", 1),
    Sketcher.Constraint("Horizontal", 2),
    Sketcher.Constraint("Vertical", 3),
    Sketcher.Constraint("Horizontal", 4),
    Sketcher.Constraint("Vertical", 5),
    Sketcher.Constraint("Horizontal", 6),
    Sketcher.Constraint("Vertical", 7),
    Sketcher.Constraint("Equal", 2, 4),
    Sketcher.Constraint("Equal", 3, 5),
    Sketcher.Constraint("DistanceX", 0, 2, 0, 1, Q("2 mm")),
    Sketcher.Constraint("DistanceY", 1, 1, 1, 2, Q("6.4 mm")),
    Sketcher.Constraint("DistanceX", 4, 2, 0, 2, Q("133 mm")),
    Sketcher.Constraint("DistanceY", 0, 2, 4, 2, Q("1 mm")),
    Sketcher.Constraint("DistanceX", -1, 1, 0, 2, Q("65.5 mm")),
    Sketcher.Constraint("DistanceY", 0, 2, -1, 1, Q("14.35 mm")),
])
sketch9.setExpression("Constraints[18]", "Params.sketch9_width")
sketch9.setExpression("Constraints[19]", "Params.sketch9_height")
pocket5 = body.newObject("PartDesign::Pocket", "Pocket004")
pocket5.Profile = sketch9
pocket5.setExpression("Length", "Params.pocket5_length")
pocket5.Reversed = True
body2 = doc.addObject("PartDesign::Body", "Body001")

sketch10 = body2.newObject("Sketcher::SketchObject", "Sketch009")
sketch10.AttachmentSupport = (doc.getObject("YZ_Plane001"), [""])
sketch10.MapMode = "FlatFace"
sketch10.AttachmentOffset = App.Placement(Vector(0, 0, 90), App.Rotation())
add_polygon(sketch10, [(24, 0), (16, 0), (16, -22.3), (24, -22.3)])
sketch10.addConstraint([
    Sketcher.Constraint("Horizontal", 0),
    Sketcher.Constraint("Vertical", 1),
    Sketcher.Constraint("Horizontal", 2),
    Sketcher.Constraint("Vertical", 3),
    Sketcher.Constraint("PointOnObject", 0, 2, -1),
    Sketcher.Constraint("DistanceX", 0, 2, 0, 1, Q("8 mm")),
    Sketcher.Constraint("DistanceY", 1, 2, 1, 1, Q("22.3 mm")),
    Sketcher.Constraint("DistanceX", -1, 1, 0, 2, Q("16 mm")),
])
sketch10.setExpression("Constraints[9]", "Params.sketch10_width")
sketch10.setExpression("Constraints[10]", "Params.sketch10_height")
pad5 = body2.newObject("PartDesign::Pad", "Pad004")
pad5.Profile = sketch10
pad5.setExpression("Length", "Params.pad5_length")
pad5.Reversed = True
body3 = doc.addObject("PartDesign::Body", "Body002")

sketch11 = body3.newObject("Sketcher::SketchObject", "Sketch010")
sketch11.AttachmentSupport = (doc.getObject("YZ_Plane002"), [""])
sketch11.MapMode = "FlatFace"
sketch11.AttachmentOffset = App.Placement(Vector(0, 0, 90), App.Rotation())
add_polygon(sketch11, [(-16, 0), (-24, 0), (-24, -22.3), (-16, -22.3)])
sketch11.addConstraint([
    Sketcher.Constraint("Horizontal", 0),
    Sketcher.Constraint("Vertical", 1),
    Sketcher.Constraint("Horizontal", 2),
    Sketcher.Constraint("Vertical", 3),
    Sketcher.Constraint("PointOnObject", 0, 2, -1),
    Sketcher.Constraint("DistanceX", 0, 2, 0, 1, Q("8 mm")),
    Sketcher.Constraint("DistanceY", 1, 2, 1, 1, Q("22.3 mm")),
    Sketcher.Constraint("DistanceX", 0, 2, -1, 1, Q("24 mm")),
])
sketch11.setExpression("Constraints[9]", "Params.sketch11_width")
sketch11.setExpression("Constraints[10]", "Params.sketch11_height")
pad6 = body3.newObject("PartDesign::Pad", "Pad005")
pad6.Profile = sketch11
pad6.setExpression("Length", "Params.pad6_length")
pad6.Reversed = True
body4 = doc.addObject("PartDesign::Body", "Body003")
body4.AllowCompound = True

sketch12 = body4.newObject("Sketcher::SketchObject", "Sketch011")
sketch12.AttachmentSupport = (doc.getObject("YZ_Plane003"), [""])
sketch12.MapMode = "FlatFace"
sketch12.AttachmentOffset = App.Placement(Vector(0, 0, 90), App.Rotation())
sketch12.addGeometry([
    Part.Circle(Vector(20, -5, 0), Vector(0, 0, 1), 2.3),
    Part.Circle(Vector(20, -17.3, 0), Vector(0, 0, 1), 2.3),
    Part.Circle(Vector(-20, -5, 0), Vector(0, 0, 1), 2.3),
    Part.Circle(Vector(-20, -17.635342, 0), Vector(0, 0, 1), 2.3),
], False)
sketch12.addConstraint([
    Sketcher.Constraint("Equal", 0, 1),
    Sketcher.Constraint("Equal", 1, 2),
    Sketcher.Constraint("Equal", 2, 3),
    Sketcher.Constraint("Symmetric", 0, 3, 2, 3, -2),
    Sketcher.Constraint("Vertical", 0, 3, 1, 3),
    Sketcher.Constraint("Vertical", 2, 3, 3, 3),
    Sketcher.Constraint("Diameter", 0, Q("4.6 mm")),
    Sketcher.Constraint("DistanceX", -1, 1, 0, 3, Q("20 mm")),
    Sketcher.Constraint("DistanceY", 0, 3, -1, 1, Q("5 mm")),
    Sketcher.Constraint("DistanceY", 1, 3, -1, 1, Q("17.3 mm")),
    Sketcher.Constraint("DistanceY", 3, 3, -1, 1, Q("17.635342 mm")),
])
sketch12.setExpression("Constraints[6]", "Params.sketch12_diameter")
pad7 = body4.newObject("PartDesign::Pad", "Pad006")
pad7.Profile = sketch12
pad7.setExpression("Length", "Params.pad7_length")
pad7.Reversed = True
doc.recompute()

body5 = doc.addObject("PartDesign::Body", "Body004")
body5.BaseFeature = body4
boolean = body.newObject("PartDesign::Boolean", "Boolean")
boolean.Type = "Cut"
boolean.addObjects([body5])
doc.recompute()

sketch13 = body.newObject("Sketcher::SketchObject", "Sketch012")
sketch13.AttachmentSupport = (doc.getObject("XY_Plane"), [""])
sketch13.MapMode = "FlatFace"
sketch13.AttachmentOffset = App.Placement(Vector(0, 0, 5), App.Rotation())
sketch13.addGeometry([
    Part.Circle(Vector(78.5, 78, 0), Vector(0, 0, 1), 6.5),
    Part.Circle(Vector(78.5, 0, 0), Vector(0, 0, 1), 6.5),
    Part.Circle(Vector(78.5, -78, 0), Vector(0, 0, 1), 6.5),
    Part.Circle(Vector(-78.5, 78, 0), Vector(0, 0, 1), 6.5),
    Part.Circle(Vector(-78.5, 0, 0), Vector(0, 0, 1), 6.5),
    Part.Circle(Vector(-78.5, -78, 0), Vector(0, 0, 1), 6.5),
    Part.Circle(Vector(0, 0, 0), Vector(0, 0, 1), 6),
    Part.Circle(Vector(0, 78, 0), Vector(0, 0, 1), 6),
    Part.Circle(Vector(0, -78, 0), Vector(0, 0, 1), 6),
], False)
sketch13.addConstraint([
    Sketcher.Constraint("Coincident", 6, 3, -1, 1),
    Sketcher.Constraint("Equal", 0, 1),
    Sketcher.Constraint("Equal", 1, 2),
    Sketcher.Constraint("Equal", 2, 3),
    Sketcher.Constraint("Equal", 3, 4),
    Sketcher.Constraint("Equal", 4, 5),
    Sketcher.Constraint("Equal", 6, 7),
    Sketcher.Constraint("Equal", 7, 8),
    Sketcher.Constraint("Symmetric", 2, 3, 3, 3, -1, 1),
    Sketcher.Constraint("Symmetric", 1, 3, 4, 3, -1, 1),
    Sketcher.Constraint("Symmetric", 0, 3, 5, 3, -1, 1),
    Sketcher.Constraint("Symmetric", 7, 3, 8, 3, -1, 1),
    Sketcher.Constraint("Symmetric", 0, 3, 3, 3, -2),
    Sketcher.Constraint("PointOnObject", 1, 3, -1),
    Sketcher.Constraint("PointOnObject", 7, 3, -2),
    Sketcher.Constraint("Horizontal", 3, 3, 7, 3),
    Sketcher.Constraint("Vertical", 0, 3, 1, 3),
    Sketcher.Constraint("Diameter", 0, Q("13 mm")),
    Sketcher.Constraint("Diameter", 6, Q("12 mm")),
    Sketcher.Constraint("DistanceY", -1, 1, 0, 3, Q("78 mm")),
    Sketcher.Constraint("DistanceX", 3, 3, 0, 3, Q("157 mm")),
])
sketch13.setExpression("Constraints[17]", "Params.sketch13_diameter")
sketch13.setExpression("Constraints[18]", "Params.sketch13_diameter2")
pocket6 = body.newObject("PartDesign::Pocket", "Pocket005")
pocket6.Profile = sketch13
pocket6.Type = "ThroughAll"
doc.recompute()

fillet = body.newObject("PartDesign::Fillet", "Fillet")
fillet.Base = (pocket6, edges_at(pocket6, [
    (-90, 90, 2.5),
    (90, 90, 2.5),
    (90, -90, 2.5),
    (-90, -90, 2.5),
]))
fillet.setExpression("Radius", "Params.fillet_radius")

sketch14 = body.newObject("Sketcher::SketchObject", "Sketch013")
sketch14.AttachmentSupport = (doc.getObject("XZ_Plane"), [""])
sketch14.MapMode = "FlatFace"
sketch14.AttachmentOffset = App.Placement(Vector(0, 0, -90), App.Rotation())
add_polygon(sketch14, [(-15, 0), (-15, 35), (15, 35), (15, 0), (10, 0), (10, 10), (-10, 10), (-10, 0)])
sketch14.addConstraint([
    Sketcher.Constraint("Vertical", 0),
    Sketcher.Constraint("Horizontal", 1),
    Sketcher.Constraint("Vertical", 2),
    Sketcher.Constraint("Horizontal", 3),
    Sketcher.Constraint("Vertical", 4),
    Sketcher.Constraint("Horizontal", 5),
    Sketcher.Constraint("Vertical", 6),
    Sketcher.Constraint("Horizontal", 7),
    Sketcher.Constraint("Symmetric", 3, 2, 6, 2, -1, 1),
    Sketcher.Constraint("Symmetric", 2, 2, 7, 2, -2),
    Sketcher.Constraint("DistanceX", 1, 1, 1, 2, Q("30 mm")),
    Sketcher.Constraint("DistanceX", 3, 2, 3, 1, Q("5 mm")),
    Sketcher.Constraint("DistanceY", 0, 1, 0, 2, Q("35 mm")),
    Sketcher.Constraint("DistanceY", 4, 1, 4, 2, Q("10 mm")),
])
sketch14.setExpression("Constraints[18]", "Params.sketch14_width")
sketch14.setExpression("Constraints[19]", "Params.sketch14_width2")
sketch14.setExpression("Constraints[20]", "Params.sketch14_height")
sketch14.setExpression("Constraints[21]", "Params.sketch14_height2")
pad8 = body.newObject("PartDesign::Pad", "Pad007")
pad8.Profile = sketch14
pad8.setExpression("Length", "Params.pad8_length")

sketch15 = body.newObject("Sketcher::SketchObject", "Sketch014")
sketch15.AttachmentSupport = (doc.getObject("XZ_Plane"), [""])
sketch15.MapMode = "FlatFace"
sketch15.AttachmentOffset = App.Placement(Vector(0, 0, -90), App.Rotation())
sketch15.addGeometry([
    Part.Circle(Vector(-12.5, 32.5, 0), Vector(0, 0, 1), 1.2),
    Part.Circle(Vector(12.5, 32.5, 0), Vector(0, 0, 1), 1.2),
    Part.Circle(Vector(-12.5, 19.5, 0), Vector(0, 0, 1), 1.2),
    Part.Circle(Vector(12.5, 19.5, 0), Vector(0, 0, 1), 1.2),
], False)
sketch15.addConstraint([
    Sketcher.Constraint("Equal", 0, 1),
    Sketcher.Constraint("Equal", 1, 2),
    Sketcher.Constraint("Equal", 2, 3),
    Sketcher.Constraint("Symmetric", 0, 3, 1, 3, -2),
    Sketcher.Constraint("Symmetric", 2, 3, 3, 3, -2),
    Sketcher.Constraint("Vertical", 0, 3, 2, 3),
    Sketcher.Constraint("Diameter", 0, Q("2.4 mm")),
    Sketcher.Constraint("DistanceX", 0, 3, 1, 3, Q("25 mm")),
    Sketcher.Constraint("DistanceY", 2, 3, 0, 3, Q("13 mm")),
    Sketcher.Constraint("DistanceY", -1, 1, 0, 3, Q("32.5 mm")),
])
sketch15.setExpression("Constraints[6]", "Params.sketch15_diameter")
pocket7 = body.newObject("PartDesign::Pocket", "Pocket006")
pocket7.Profile = sketch15
pocket7.Type = "ThroughAll"
pocket7.Reversed = True
doc.recompute()

body6 = doc.addObject("PartDesign::Body", "Body005")
body6.BaseFeature = body4
boolean2 = body2.newObject("PartDesign::Boolean", "Boolean001")
boolean2.Type = "Cut"
boolean2.addObjects([body6])
doc.recompute()

boolean3 = body3.newObject("PartDesign::Boolean", "Boolean002")
boolean3.Type = "Cut"
boolean3.addObjects([body4])

doc.recompute()
